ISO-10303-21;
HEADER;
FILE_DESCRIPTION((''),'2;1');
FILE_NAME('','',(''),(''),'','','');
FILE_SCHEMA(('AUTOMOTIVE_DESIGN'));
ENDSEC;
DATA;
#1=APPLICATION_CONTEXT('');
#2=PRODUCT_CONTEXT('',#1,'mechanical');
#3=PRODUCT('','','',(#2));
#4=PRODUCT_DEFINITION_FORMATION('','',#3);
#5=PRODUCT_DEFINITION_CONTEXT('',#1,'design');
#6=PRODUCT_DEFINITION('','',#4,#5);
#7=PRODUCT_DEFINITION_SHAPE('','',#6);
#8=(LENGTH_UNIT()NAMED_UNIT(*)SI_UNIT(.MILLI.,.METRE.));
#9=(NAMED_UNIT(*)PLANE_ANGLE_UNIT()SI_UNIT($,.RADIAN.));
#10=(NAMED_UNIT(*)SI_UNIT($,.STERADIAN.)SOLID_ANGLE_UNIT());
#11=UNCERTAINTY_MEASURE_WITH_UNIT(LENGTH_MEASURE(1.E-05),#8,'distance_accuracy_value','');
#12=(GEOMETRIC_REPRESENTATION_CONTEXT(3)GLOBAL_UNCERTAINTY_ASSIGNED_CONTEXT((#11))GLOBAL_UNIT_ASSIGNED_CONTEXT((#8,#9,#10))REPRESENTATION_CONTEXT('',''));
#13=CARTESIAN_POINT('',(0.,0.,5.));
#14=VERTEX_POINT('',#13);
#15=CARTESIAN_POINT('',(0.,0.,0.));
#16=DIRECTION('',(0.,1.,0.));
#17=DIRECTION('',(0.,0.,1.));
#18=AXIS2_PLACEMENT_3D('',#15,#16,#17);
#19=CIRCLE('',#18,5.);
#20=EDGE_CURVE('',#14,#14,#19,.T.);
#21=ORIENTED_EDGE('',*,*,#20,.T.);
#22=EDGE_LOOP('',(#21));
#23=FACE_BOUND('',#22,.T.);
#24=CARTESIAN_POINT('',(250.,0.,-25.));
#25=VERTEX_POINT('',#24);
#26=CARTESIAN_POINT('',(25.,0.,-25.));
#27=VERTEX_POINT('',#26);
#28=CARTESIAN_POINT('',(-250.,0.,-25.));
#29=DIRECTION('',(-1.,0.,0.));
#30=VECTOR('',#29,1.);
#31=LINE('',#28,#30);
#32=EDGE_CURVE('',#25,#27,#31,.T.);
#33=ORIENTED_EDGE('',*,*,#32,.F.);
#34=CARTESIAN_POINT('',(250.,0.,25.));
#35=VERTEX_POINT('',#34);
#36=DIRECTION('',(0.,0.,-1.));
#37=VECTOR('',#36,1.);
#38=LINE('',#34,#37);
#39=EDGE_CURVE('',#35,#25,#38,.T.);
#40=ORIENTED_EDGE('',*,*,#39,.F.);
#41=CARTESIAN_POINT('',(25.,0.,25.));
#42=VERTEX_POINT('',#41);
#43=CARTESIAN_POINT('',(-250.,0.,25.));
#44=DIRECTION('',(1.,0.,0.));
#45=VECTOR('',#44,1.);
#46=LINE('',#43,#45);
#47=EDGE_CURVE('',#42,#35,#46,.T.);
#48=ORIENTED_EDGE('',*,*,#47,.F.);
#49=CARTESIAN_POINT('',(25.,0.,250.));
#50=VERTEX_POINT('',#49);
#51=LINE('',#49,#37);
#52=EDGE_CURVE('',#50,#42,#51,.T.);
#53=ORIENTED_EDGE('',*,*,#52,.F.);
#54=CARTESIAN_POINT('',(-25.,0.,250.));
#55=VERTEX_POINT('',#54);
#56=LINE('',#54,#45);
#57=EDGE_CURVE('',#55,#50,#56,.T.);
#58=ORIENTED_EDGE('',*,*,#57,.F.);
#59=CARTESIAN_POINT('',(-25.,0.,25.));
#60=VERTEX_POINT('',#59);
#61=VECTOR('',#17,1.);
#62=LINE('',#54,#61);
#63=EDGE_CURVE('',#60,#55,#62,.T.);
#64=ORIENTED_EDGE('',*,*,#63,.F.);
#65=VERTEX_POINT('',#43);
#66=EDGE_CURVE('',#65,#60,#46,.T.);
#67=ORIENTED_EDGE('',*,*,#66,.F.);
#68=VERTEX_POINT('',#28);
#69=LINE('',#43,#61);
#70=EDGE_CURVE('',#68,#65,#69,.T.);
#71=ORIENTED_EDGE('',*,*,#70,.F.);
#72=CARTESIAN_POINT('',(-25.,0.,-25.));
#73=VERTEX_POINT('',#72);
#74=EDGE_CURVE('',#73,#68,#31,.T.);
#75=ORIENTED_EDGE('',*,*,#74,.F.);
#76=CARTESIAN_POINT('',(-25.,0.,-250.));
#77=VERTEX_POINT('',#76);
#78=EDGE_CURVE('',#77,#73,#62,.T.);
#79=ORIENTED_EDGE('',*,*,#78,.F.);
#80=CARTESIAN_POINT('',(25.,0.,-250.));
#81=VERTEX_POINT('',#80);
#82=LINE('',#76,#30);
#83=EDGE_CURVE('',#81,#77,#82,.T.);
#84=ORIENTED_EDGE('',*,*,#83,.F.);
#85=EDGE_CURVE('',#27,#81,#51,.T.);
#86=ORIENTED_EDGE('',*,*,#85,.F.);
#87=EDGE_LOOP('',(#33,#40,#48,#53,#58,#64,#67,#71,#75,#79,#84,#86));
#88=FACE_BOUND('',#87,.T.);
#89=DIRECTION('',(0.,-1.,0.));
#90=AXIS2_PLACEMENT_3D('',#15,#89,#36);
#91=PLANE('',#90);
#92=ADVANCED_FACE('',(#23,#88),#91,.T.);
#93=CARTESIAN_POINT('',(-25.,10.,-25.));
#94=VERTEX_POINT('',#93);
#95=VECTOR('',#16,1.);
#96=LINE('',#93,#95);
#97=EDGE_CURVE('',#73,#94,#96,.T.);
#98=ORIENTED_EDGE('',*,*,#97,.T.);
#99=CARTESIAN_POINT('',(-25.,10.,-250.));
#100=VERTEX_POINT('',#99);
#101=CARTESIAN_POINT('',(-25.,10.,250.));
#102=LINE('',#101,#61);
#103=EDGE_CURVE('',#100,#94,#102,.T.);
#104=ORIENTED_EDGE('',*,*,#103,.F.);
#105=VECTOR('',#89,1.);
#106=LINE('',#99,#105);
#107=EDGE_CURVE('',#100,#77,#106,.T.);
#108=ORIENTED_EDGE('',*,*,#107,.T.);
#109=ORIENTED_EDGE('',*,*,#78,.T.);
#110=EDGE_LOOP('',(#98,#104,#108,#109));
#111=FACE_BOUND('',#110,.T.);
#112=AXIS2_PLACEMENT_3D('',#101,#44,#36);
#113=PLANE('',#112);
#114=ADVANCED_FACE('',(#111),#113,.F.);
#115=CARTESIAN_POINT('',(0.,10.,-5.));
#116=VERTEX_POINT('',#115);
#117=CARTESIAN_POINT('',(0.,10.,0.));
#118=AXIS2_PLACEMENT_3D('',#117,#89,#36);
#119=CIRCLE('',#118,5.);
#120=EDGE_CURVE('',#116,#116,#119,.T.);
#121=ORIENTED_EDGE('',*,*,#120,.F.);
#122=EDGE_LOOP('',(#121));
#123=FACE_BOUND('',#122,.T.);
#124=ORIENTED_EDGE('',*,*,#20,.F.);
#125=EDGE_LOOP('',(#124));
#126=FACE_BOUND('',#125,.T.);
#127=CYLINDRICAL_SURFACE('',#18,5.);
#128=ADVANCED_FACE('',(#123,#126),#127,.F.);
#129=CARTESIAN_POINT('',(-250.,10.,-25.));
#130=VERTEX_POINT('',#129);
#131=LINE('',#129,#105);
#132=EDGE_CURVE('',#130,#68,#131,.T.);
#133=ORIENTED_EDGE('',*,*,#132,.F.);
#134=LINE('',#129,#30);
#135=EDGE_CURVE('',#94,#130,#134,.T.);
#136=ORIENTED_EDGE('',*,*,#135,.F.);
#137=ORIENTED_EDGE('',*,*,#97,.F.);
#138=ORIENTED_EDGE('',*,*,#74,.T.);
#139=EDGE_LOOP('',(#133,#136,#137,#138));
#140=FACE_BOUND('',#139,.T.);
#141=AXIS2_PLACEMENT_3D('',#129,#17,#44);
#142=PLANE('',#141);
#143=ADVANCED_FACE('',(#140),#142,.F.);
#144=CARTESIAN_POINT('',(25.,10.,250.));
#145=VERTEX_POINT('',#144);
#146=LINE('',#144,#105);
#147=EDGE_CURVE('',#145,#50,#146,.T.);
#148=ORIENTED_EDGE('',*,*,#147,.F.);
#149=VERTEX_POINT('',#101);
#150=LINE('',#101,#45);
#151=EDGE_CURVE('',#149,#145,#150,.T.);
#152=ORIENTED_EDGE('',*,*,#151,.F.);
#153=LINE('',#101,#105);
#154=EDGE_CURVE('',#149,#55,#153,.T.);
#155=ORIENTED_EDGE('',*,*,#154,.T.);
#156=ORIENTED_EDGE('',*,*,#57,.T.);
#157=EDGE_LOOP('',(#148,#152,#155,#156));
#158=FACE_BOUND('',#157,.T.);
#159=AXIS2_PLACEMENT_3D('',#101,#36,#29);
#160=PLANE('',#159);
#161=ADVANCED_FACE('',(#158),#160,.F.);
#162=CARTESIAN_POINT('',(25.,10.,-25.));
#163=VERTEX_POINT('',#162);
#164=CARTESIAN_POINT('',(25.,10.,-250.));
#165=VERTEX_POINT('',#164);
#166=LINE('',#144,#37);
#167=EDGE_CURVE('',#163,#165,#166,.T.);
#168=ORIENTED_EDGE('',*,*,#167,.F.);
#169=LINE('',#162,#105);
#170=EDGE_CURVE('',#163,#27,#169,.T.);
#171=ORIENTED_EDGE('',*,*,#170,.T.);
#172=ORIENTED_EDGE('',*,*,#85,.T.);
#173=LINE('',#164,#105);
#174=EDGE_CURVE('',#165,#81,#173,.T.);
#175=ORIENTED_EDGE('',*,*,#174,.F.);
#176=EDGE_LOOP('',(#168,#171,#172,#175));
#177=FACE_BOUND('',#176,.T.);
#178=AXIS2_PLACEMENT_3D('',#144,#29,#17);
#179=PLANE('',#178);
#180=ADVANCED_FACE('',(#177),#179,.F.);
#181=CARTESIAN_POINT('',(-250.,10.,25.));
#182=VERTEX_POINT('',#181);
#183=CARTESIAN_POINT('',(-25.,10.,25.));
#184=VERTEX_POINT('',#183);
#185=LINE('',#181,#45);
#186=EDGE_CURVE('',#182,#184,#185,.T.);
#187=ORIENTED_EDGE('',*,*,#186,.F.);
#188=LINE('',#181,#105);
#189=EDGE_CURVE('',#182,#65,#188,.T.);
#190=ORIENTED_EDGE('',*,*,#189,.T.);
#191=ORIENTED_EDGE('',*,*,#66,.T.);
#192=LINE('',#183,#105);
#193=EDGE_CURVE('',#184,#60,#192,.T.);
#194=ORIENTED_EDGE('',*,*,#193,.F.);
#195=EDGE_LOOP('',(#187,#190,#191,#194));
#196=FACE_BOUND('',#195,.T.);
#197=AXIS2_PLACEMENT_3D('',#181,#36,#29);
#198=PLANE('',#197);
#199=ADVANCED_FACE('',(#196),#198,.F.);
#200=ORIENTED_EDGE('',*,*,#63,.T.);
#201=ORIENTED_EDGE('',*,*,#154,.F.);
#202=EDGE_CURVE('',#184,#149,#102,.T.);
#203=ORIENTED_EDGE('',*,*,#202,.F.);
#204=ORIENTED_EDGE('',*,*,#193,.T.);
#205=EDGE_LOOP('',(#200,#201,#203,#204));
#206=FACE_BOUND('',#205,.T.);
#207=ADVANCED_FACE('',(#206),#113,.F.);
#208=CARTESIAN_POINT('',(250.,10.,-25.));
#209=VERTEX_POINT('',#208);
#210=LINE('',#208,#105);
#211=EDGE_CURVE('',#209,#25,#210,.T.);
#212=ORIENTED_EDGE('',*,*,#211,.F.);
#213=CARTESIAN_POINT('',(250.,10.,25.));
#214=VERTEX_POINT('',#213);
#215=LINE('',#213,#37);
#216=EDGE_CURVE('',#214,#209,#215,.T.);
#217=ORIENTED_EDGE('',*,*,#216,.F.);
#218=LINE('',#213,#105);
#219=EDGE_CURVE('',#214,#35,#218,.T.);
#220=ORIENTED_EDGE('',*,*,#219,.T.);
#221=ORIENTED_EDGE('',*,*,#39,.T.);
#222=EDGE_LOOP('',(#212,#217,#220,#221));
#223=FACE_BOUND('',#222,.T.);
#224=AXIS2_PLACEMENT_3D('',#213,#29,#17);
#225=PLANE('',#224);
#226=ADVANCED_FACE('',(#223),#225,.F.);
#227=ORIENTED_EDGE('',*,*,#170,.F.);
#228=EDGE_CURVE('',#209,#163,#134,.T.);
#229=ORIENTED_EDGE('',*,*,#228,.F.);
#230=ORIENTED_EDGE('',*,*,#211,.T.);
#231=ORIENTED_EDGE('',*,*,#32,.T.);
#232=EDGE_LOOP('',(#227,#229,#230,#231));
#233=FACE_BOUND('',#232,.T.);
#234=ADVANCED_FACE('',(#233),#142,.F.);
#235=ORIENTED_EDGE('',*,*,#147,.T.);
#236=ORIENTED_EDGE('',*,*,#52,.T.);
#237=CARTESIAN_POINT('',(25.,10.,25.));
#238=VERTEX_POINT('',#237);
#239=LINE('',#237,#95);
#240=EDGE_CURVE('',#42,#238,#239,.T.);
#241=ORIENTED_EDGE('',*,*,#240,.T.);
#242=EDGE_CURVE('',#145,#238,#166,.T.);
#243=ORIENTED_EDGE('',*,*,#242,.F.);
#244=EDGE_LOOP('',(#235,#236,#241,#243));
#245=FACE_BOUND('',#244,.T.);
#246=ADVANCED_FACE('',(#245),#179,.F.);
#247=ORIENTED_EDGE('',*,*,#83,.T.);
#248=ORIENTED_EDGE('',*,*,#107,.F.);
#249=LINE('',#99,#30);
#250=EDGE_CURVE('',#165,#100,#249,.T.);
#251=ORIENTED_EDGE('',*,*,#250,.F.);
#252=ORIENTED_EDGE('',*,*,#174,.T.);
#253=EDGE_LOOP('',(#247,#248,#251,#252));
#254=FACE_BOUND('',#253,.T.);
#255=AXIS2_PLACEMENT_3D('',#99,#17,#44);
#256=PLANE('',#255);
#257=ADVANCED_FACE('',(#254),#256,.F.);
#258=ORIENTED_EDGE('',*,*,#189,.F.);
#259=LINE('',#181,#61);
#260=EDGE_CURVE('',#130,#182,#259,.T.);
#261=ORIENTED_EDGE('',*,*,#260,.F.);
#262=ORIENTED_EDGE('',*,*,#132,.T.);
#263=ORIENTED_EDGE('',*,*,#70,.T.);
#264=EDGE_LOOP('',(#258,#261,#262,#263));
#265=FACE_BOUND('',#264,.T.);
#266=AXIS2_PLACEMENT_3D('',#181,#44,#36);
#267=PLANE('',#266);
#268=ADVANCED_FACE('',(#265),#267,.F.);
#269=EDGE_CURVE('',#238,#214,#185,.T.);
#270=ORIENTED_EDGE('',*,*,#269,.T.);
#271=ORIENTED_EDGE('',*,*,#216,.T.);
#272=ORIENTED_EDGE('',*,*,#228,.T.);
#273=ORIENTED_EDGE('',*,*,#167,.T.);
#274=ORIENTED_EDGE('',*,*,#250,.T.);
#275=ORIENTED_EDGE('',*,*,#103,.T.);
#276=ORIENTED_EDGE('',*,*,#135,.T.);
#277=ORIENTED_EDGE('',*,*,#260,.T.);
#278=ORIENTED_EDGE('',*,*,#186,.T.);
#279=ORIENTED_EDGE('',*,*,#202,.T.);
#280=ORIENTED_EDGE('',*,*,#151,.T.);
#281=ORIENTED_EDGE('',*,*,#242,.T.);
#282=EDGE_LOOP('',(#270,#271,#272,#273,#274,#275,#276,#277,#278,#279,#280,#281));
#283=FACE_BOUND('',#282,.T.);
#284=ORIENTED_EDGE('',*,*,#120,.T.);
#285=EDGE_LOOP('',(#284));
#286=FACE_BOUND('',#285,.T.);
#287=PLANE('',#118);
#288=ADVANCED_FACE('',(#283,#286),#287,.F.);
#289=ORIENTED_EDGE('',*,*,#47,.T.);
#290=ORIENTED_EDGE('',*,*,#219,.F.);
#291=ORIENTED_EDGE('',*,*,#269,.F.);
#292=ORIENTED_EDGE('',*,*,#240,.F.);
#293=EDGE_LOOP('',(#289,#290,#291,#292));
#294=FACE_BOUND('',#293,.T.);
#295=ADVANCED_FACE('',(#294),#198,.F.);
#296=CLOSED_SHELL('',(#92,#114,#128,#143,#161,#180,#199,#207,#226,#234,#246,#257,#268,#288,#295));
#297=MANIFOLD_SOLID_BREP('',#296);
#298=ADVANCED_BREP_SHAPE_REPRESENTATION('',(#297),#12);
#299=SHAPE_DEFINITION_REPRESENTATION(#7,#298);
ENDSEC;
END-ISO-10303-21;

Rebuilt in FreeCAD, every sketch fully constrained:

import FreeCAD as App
import Part
import Sketcher

V = App.Vector


def add_polygon(sketch, points):
    """Adds a closed chain of lines whose ends are joined by coincident constraints."""
    first, n = sketch.GeometryCount, len(points)
    for a, b in zip(points, points[1:] + points[:1]):
        sketch.addGeometry(Part.LineSegment(App.Vector(*a, 0), App.Vector(*b, 0)), False)
    for i in range(n):
        sketch.addConstraint(Sketcher.Constraint("Coincident", first + i, 2, first + (i + 1) % n, 1))

doc = App.newDocument("Part")
body = doc.addObject("PartDesign::Body", "Body")

# Sketch on XZ plane
sketch1 = doc.addObject("Sketcher::SketchObject", "Sketch")
body.addObject(sketch1)
sketch1.AttachmentSupport = (doc.XZ_Plane, [""])
sketch1.MapMode = "FlatFace"
add_polygon(sketch1, [(-250, -25), (-250, 25), (250, 25), (250, -25)])  # lines 0-3
sketch1.addConstraint(Sketcher.Constraint("Vertical", 0))
sketch1.addConstraint(Sketcher.Constraint("Horizontal", 1))
sketch1.addConstraint(Sketcher.Constraint("Vertical", 2))
sketch1.addConstraint(Sketcher.Constraint("Horizontal", 3))
sketch1.addConstraint(Sketcher.Constraint("Symmetric", 0, 2, 2, 2, -1, 1))
sketch1.addConstraint(Sketcher.Constraint("DistanceX", 1, 1, 1, 2, 500.0))
sketch1.addConstraint(Sketcher.Constraint("DistanceY", 0, 1, 0, 2, 50.0))
pad1 = doc.addObject("PartDesign::Pad", "Pad")
body.addObject(pad1)
pad1.Profile = sketch1
pad1.Length = 10
pad1.Reversed = True

# Sketch on XZ plane
sketch2 = doc.addObject("Sketcher::SketchObject", "Sketch001")
body.addObject(sketch2)
sketch2.AttachmentSupport = (doc.XZ_Plane, [""])
sketch2.MapMode = "FlatFace"
add_polygon(sketch2, [(-25, -250), (-25, 250), (25, 250), (25, -250)])  # lines 0-3
sketch2.addConstraint(Sketcher.Constraint("Vertical", 0))
sketch2.addConstraint(Sketcher.Constraint("Horizontal", 1))
sketch2.addConstraint(Sketcher.Constraint("Vertical", 2))
sketch2.addConstraint(Sketcher.Constraint("Horizontal", 3))
sketch2.addConstraint(Sketcher.Constraint("Symmetric", 0, 2, 2, 2, -1, 1))
sketch2.addConstraint(Sketcher.Constraint("DistanceX", 1, 1, 1, 2, 50.0))
sketch2.addConstraint(Sketcher.Constraint("DistanceY", 0, 1, 0, 2, 500.0))
pad2 = doc.addObject("PartDesign::Pad", "Pad001")
body.addObject(pad2)
pad2.Profile = sketch2
pad2.Length = 10
pad2.Reversed = True

# Sketch on XZ plane
sketch3 = doc.addObject("Sketcher::SketchObject", "Sketch002")
body.addObject(sketch3)
sketch3.AttachmentSupport = (doc.XZ_Plane, [""])
sketch3.MapMode = "FlatFace"
sketch3.AttachmentOffset = App.Placement(V(0, 0, -10), App.Rotation())
sketch3.addGeometry(Part.Circle(V(0, 0, 0), V(0, 0, 1), 5), False)
sketch3.addConstraint(Sketcher.Constraint("Coincident", 0, 3, -1, 1))
sketch3.addConstraint(Sketcher.Constraint("Diameter", 0, 10.0))
pocket1 = doc.addObject("PartDesign::Pocket", "Pocket")
body.addObject(pocket1)
pocket1.Profile = sketch3
pocket1.Type = "ThroughAll"
pocket1.Midplane = True

doc.recompute()
